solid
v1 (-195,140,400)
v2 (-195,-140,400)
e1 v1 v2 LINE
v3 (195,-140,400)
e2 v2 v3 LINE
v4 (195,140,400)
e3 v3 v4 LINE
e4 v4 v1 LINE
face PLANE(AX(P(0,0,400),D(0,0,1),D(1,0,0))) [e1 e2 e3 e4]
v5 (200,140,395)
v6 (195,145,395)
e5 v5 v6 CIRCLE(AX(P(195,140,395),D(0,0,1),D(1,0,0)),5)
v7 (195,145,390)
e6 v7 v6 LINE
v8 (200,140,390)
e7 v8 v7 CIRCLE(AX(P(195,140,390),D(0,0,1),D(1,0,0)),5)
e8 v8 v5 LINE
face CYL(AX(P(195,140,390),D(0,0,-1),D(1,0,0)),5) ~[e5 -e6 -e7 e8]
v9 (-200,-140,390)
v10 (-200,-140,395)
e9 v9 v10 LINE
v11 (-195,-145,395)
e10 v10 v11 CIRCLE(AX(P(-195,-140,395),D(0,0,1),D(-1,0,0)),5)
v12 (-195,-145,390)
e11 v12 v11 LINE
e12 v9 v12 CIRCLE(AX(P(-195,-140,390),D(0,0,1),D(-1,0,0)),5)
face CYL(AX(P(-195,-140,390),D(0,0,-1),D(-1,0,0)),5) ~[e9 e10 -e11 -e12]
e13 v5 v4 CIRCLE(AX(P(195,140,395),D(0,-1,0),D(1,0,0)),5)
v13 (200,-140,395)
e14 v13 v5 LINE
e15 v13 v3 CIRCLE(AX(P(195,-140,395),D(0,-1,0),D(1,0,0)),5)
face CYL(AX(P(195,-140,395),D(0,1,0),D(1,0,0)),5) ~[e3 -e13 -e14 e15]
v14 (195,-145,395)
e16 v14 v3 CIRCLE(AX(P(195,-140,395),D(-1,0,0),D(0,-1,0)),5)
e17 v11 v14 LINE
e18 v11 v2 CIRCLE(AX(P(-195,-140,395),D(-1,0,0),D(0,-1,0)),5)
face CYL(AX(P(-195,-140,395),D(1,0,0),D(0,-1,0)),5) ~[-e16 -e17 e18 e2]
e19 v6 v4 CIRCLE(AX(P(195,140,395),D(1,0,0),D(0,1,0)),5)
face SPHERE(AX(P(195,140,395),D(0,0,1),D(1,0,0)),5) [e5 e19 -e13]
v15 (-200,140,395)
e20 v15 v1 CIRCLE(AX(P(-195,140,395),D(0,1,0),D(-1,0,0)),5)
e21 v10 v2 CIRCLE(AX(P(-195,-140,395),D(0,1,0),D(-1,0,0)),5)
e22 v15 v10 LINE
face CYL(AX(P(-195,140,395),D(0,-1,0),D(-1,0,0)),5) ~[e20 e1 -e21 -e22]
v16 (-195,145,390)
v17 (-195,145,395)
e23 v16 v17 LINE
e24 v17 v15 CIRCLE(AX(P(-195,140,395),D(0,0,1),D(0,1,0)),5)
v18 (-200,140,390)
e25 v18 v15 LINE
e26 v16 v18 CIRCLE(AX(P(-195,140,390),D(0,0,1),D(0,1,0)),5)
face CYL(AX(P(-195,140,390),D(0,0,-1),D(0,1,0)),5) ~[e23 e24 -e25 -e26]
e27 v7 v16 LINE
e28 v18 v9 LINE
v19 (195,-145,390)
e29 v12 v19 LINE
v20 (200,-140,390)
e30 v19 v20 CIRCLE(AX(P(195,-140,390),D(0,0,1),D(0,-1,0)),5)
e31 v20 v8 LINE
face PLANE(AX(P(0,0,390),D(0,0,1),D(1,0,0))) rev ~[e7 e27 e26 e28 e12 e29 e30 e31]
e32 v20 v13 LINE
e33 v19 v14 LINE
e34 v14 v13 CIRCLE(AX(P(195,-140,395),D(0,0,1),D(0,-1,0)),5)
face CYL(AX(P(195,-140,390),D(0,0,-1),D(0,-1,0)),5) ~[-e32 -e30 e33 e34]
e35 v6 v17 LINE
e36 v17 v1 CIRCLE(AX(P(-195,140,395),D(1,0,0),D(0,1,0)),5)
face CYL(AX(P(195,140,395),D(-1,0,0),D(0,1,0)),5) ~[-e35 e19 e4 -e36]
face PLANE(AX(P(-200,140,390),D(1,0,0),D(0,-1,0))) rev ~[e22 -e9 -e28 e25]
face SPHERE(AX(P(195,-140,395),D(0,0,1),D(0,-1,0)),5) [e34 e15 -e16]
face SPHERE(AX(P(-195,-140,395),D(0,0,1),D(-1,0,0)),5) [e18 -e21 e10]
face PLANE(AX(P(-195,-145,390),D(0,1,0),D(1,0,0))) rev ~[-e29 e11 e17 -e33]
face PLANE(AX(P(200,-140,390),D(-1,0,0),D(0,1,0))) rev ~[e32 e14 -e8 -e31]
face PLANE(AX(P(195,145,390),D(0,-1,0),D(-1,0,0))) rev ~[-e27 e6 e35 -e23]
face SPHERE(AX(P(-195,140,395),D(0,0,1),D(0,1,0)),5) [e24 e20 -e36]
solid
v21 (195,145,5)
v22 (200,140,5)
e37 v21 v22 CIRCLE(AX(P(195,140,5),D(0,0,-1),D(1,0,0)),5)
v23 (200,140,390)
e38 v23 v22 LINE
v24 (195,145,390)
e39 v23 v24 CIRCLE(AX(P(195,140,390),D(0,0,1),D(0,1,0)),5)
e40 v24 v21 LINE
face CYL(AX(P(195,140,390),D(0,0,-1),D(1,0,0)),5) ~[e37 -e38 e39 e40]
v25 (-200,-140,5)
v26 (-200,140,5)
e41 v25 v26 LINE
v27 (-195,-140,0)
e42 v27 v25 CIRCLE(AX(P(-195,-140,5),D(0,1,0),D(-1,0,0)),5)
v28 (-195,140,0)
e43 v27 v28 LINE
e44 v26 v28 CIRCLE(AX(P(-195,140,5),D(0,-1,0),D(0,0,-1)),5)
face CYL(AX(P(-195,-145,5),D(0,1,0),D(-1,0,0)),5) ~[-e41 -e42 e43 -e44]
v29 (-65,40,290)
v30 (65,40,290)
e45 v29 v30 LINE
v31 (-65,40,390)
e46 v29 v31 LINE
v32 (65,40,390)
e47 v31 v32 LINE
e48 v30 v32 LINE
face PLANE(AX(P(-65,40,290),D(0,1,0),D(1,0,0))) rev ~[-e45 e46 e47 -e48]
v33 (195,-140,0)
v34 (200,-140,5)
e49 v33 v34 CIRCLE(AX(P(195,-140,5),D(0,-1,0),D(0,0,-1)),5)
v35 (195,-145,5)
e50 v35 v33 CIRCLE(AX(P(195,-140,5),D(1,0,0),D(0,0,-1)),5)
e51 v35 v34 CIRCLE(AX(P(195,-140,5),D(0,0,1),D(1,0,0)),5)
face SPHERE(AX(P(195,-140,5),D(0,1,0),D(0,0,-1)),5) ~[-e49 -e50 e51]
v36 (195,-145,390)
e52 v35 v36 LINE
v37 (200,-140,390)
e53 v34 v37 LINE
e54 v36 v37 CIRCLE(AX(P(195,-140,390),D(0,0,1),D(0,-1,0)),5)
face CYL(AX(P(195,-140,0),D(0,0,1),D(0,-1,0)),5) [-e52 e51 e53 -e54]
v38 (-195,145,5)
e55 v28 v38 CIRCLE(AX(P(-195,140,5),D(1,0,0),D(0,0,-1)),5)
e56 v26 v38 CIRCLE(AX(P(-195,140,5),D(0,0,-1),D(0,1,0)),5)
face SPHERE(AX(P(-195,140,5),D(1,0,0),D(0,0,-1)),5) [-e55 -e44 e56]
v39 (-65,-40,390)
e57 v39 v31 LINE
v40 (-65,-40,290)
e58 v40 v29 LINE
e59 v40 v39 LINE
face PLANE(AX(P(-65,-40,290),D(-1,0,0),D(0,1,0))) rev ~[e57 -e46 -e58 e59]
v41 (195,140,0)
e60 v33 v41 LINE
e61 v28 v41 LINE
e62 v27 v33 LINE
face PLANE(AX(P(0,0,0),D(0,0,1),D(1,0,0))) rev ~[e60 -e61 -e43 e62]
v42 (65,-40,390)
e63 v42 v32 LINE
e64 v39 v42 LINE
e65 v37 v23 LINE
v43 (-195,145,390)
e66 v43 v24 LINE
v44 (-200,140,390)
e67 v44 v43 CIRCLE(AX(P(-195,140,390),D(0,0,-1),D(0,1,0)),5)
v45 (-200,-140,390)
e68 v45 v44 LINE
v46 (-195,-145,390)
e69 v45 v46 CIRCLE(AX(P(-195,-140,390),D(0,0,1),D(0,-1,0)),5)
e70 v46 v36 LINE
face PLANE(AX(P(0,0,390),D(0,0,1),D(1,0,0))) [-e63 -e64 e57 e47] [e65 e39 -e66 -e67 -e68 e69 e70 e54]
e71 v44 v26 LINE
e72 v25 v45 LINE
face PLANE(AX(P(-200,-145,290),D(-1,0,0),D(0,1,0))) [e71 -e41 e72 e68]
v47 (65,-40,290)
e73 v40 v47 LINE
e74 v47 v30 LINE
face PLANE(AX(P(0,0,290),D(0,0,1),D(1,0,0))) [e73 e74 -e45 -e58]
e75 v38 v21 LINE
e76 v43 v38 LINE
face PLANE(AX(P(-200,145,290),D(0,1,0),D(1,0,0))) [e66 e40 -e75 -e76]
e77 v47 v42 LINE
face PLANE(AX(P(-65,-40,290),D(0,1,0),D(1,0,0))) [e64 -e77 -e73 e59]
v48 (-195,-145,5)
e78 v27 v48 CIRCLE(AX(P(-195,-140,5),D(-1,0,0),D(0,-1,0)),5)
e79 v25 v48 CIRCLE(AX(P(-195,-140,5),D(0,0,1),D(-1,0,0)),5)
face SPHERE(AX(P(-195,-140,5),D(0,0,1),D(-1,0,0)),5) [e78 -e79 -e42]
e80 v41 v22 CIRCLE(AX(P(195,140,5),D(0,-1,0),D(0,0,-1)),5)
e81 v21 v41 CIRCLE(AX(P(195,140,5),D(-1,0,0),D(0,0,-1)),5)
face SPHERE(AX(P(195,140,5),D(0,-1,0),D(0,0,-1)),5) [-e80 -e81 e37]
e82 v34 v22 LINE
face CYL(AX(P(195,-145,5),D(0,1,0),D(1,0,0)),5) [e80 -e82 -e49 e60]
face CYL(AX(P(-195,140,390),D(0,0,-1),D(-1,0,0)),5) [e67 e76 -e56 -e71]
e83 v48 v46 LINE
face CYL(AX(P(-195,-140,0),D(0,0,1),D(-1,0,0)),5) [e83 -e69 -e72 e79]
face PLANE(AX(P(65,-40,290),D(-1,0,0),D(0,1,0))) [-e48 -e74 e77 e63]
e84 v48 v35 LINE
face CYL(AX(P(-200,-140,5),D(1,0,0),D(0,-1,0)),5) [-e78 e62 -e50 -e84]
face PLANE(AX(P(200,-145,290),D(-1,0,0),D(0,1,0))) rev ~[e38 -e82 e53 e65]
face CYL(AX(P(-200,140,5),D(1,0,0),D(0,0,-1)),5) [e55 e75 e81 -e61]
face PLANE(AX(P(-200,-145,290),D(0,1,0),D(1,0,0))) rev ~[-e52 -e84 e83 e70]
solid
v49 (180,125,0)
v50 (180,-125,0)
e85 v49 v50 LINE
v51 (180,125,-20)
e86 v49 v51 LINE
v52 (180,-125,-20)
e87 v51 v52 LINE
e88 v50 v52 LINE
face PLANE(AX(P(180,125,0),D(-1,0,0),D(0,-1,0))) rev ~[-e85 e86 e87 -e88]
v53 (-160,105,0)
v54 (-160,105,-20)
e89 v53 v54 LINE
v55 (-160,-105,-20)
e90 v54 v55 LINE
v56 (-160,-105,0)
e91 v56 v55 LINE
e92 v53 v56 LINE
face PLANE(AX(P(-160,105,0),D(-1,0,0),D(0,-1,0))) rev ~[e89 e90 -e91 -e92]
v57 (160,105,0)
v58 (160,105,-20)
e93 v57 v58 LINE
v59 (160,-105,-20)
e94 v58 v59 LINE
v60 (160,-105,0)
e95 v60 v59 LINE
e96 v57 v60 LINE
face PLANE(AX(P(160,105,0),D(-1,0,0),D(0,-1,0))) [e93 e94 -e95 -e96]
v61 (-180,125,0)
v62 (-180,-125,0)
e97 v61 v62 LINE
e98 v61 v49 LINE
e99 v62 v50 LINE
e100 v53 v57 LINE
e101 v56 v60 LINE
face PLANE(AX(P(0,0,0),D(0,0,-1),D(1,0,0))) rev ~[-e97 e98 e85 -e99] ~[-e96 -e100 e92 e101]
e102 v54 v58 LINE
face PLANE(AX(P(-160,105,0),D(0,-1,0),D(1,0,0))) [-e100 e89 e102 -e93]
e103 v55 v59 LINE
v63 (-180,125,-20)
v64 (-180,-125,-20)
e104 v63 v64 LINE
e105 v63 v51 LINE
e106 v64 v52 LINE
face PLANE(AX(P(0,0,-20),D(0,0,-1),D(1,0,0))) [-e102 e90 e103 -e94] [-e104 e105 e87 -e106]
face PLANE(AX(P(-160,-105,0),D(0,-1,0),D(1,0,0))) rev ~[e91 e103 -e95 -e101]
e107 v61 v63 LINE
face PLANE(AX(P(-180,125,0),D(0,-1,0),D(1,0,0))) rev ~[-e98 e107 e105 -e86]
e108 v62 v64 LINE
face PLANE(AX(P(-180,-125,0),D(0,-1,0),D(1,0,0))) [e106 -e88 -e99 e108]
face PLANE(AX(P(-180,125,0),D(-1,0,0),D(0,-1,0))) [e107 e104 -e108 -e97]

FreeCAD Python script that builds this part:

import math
import FreeCAD as App
import Part
import Sketcher

V = App.Vector
Q = App.Units.Quantity


def edges_at(feature, points):
    """Names of the edges that pass closest to the given points."""
    edges = feature.Shape.Edges
    near = lambda p: min(range(len(edges)), key=lambda i: edges[i].distToShape(Part.Vertex(*p))[0])
    return sorted({f"Edge{near(p) + 1}" for p in points})

doc = App.newDocument("Part")
body = doc.addObject("PartDesign::Body", "Body")

# Sketch on XY plane
sketch1 = doc.addObject("Sketcher::SketchObject", "Sketch")
body.addObject(sketch1)
sketch1.AttachmentSupport = (doc.XY_Plane, [""])
sketch1.MapMode = "FlatFace"
sketch1.addGeometry([
    Part.LineSegment(V(-200, 145, 0), V(-200, -145, 0)),
    Part.LineSegment(V(-200, -145, 0), V(200, -145, 0)),
    Part.LineSegment(V(200, -145, 0), V(200, 145, 0)),
    Part.LineSegment(V(200, 145, 0), V(-200, 145, 0)),
], False)
sketch1.addConstraint([
    Sketcher.Constraint("Coincident", 0, 2, 1, 1),
    Sketcher.Constraint("Coincident", 1, 2, 2, 1),
    Sketcher.Constraint("Coincident", 2, 2, 3, 1),
    Sketcher.Constraint("Coincident", 3, 2, 0, 1),
    Sketcher.Constraint("Vertical", 0),
    Sketcher.Constraint("Horizontal", 1),
    Sketcher.Constraint("Vertical", 2),
    Sketcher.Constraint("Horizontal", 3),
    Sketcher.Constraint("Symmetric", 0, 2, 2, 2, -1, 1),
    Sketcher.Constraint("DistanceX", 1, 1, 1, 2, Q("400 mm")),
    Sketcher.Constraint("DistanceY", 0, 2, 0, 1, Q("290 mm")),
])
pad1 = doc.addObject("PartDesign::Pad", "Pad")
body.addObject(pad1)
pad1.Profile = sketch1
pad1.Length = 290

# Sketch on XY plane
sketch2 = doc.addObject("Sketcher::SketchObject", "Sketch001")
body.addObject(sketch2)
sketch2.AttachmentSupport = (doc.XY_Plane, [""])
sketch2.MapMode = "FlatFace"
sketch2.AttachmentOffset = App.Placement(V(0, 0, 290), App.Rotation())
sketch2.addGeometry([
    Part.LineSegment(V(-200, 145, 0), V(-200, -145, 0)),  # 0
    Part.LineSegment(V(-200, -145, 0), V(200, -145, 0)),  # 1
    Part.LineSegment(V(200, -145, 0), V(200, 145, 0)),  # 2
    Part.LineSegment(V(200, 145, 0), V(-200, 145, 0)),  # 3
    Part.LineSegment(V(65, -40, 0), V(-65, -40, 0)),  # 4
    Part.LineSegment(V(-65, -40, 0), V(-65, 40, 0)),  # 5
    Part.LineSegment(V(-65, 40, 0), V(65, 40, 0)),  # 6
    Part.LineSegment(V(65, 40, 0), V(65, -40, 0)),  # 7
], False)
sketch2.addConstraint([
    Sketcher.Constraint("Coincident", 0, 2, 1, 1),
    Sketcher.Constraint("Coincident", 1, 2, 2, 1),
    Sketcher.Constraint("Coincident", 2, 2, 3, 1),
    Sketcher.Constraint("Coincident", 3, 2, 0, 1),
    Sketcher.Constraint("Coincident", 4, 2, 5, 1),
    Sketcher.Constraint("Coincident", 5, 2, 6, 1),
    Sketcher.Constraint("Coincident", 6, 2, 7, 1),
    Sketcher.Constraint("Coincident", 7, 2, 4, 1),
    Sketcher.Constraint("Vertical", 0),
    Sketcher.Constraint("Horizontal", 1),
    Sketcher.Constraint("Vertical", 2),
    Sketcher.Constraint("Horizontal", 3),
    Sketcher.Constraint("Horizontal", 4),
    Sketcher.Constraint("Vertical", 5),
    Sketcher.Constraint("Horizontal", 6),
    Sketcher.Constraint("Vertical", 7),
    Sketcher.Constraint("Symmetric", 0, 2, 2, 2, -1, 1),
    Sketcher.Constraint("Symmetric", 4, 2, 6, 2, -1, 1),
    Sketcher.Constraint("DistanceX", 1, 1, 1, 2, Q("400 mm")),
    Sketcher.Constraint("DistanceX", 4, 2, 4, 1, Q("130 mm")),
    Sketcher.Constraint("DistanceY", 0, 2, 0, 1, Q("290 mm")),
    Sketcher.Constraint("DistanceY", 5, 1, 5, 2, Q("80 mm")),
])
pad2 = doc.addObject("PartDesign::Pad", "Pad001")
body.addObject(pad2)
pad2.Profile = sketch2
pad2.Length = 100
doc.recompute()

fillet = doc.addObject("PartDesign::Fillet", "Fillet")
body.addObject(fillet)
fillet.Base = (pad2, edges_at(pad2, [
    (-200, -145, 195),
    (200, 0, 0),
    (0, 145, 0),
    (-200, 0, 0),
    (0, -145, 0),
    (-200, 145, 195),
    (200, 145, 195),
    (200, -145, 195),
]))
fillet.Radius = 5
body2 = doc.addObject("PartDesign::Body", "Body001")

# Sketch on XY plane
sketch3 = doc.addObject("Sketcher::SketchObject", "Sketch002")
body2.addObject(sketch3)
sketch3.AttachmentSupport = (doc.getObject("XY_Plane001"), [""])
sketch3.MapMode = "FlatFace"
sketch3.addGeometry([
    Part.LineSegment(V(-180, -125, 0), V(-180, 125, 0)),  # 0
    Part.LineSegment(V(-180, 125, 0), V(180, 125, 0)),  # 1
    Part.LineSegment(V(180, 125, 0), V(180, -125, 0)),  # 2
    Part.LineSegment(V(180, -125, 0), V(-180, -125, 0)),  # 3
    Part.LineSegment(V(160, 105, 0), V(-160, 105, 0)),  # 4
    Part.LineSegment(V(-160, 105, 0), V(-160, -105, 0)),  # 5
    Part.LineSegment(V(-160, -105, 0), V(160, -105, 0)),  # 6
    Part.LineSegment(V(160, -105, 0), V(160, 105, 0)),  # 7
], False)
sketch3.addConstraint([
    Sketcher.Constraint("Coincident", 0, 2, 1, 1),
    Sketcher.Constraint("Coincident", 1, 2, 2, 1),
    Sketcher.Constraint("Coincident", 2, 2, 3, 1),
    Sketcher.Constraint("Coincident", 3, 2, 0, 1),
    Sketcher.Constraint("Coincident", 4, 2, 5, 1),
    Sketcher.Constraint("Coincident", 5, 2, 6, 1),
    Sketcher.Constraint("Coincident", 6, 2, 7, 1),
    Sketcher.Constraint("Coincident", 7, 2, 4, 1),
    Sketcher.Constraint("Vertical", 0),
    Sketcher.Constraint("Horizontal", 1),
    Sketcher.Constraint("Vertical", 2),
    Sketcher.Constraint("Horizontal", 3),
    Sketcher.Constraint("Horizontal", 4),
    Sketcher.Constraint("Vertical", 5),
    Sketcher.Constraint("Horizontal", 6),
    Sketcher.Constraint("Vertical", 7),
    Sketcher.Constraint("Symmetric", 0, 2, 2, 2, -1, 1),
    Sketcher.Constraint("Symmetric", 4, 2, 6, 2, -1, 1),
    Sketcher.Constraint("DistanceX", 1, 1, 1, 2, Q("360 mm")),
    Sketcher.Constraint("DistanceX", 4, 2, 4, 1, Q("320 mm")),
    Sketcher.Constraint("DistanceY", 0, 1, 0, 2, Q("250 mm")),
    Sketcher.Constraint("DistanceY", 5, 2, 5, 1, Q("210 mm")),
])
pad3 = doc.addObject("PartDesign::Pad", "Pad002")
body2.addObject(pad3)
pad3.Profile = sketch3
pad3.Length = 20
pad3.Reversed = True
body3 = doc.addObject("PartDesign::Body", "Body002")

# Sketch on XY plane
sketch4 = doc.addObject("Sketcher::SketchObject", "Sketch003")
body3.addObject(sketch4)
sketch4.AttachmentSupport = (doc.getObject("XY_Plane002"), [""])
sketch4.MapMode = "FlatFace"
sketch4.AttachmentOffset = App.Placement(V(0, 0, 390), App.Rotation())
sketch4.addGeometry([
    Part.ArcOfCircle(Part.Circle(V(-195, -140, 0), V(0, 0, 1), 5), math.radians(180), math.radians(270)),  # 0
    Part.LineSegment(V(-195, -145, 0), V(195, -145, 0)),  # 1
    Part.ArcOfCircle(Part.Circle(V(195, -140, 0), V(0, 0, 1), 5), math.radians(-90), math.radians(0)),  # 2
    Part.LineSegment(V(200, -140, 0), V(200, 140, 0)),  # 3
    Part.ArcOfCircle(Part.Circle(V(195, 140, 0), V(0, 0, 1), 5), math.radians(0), math.radians(90)),  # 4
    Part.LineSegment(V(195, 145, 0), V(-195, 145, 0)),  # 5
    Part.ArcOfCircle(Part.Circle(V(-195, 140, 0), V(0, 0, 1), 5), math.radians(90), math.radians(180)),  # 6
    Part.LineSegment(V(-200, 140, 0), V(-200, -140, 0)),  # 7
], False)
sketch4.addConstraint([
    Sketcher.Constraint("Tangent", 0, 2, 1, 1),
    Sketcher.Constraint("Tangent", 1, 2, 2, 1),
    Sketcher.Constraint("Tangent", 2, 2, 3, 1),
    Sketcher.Constraint("Tangent", 3, 2, 4, 1),
    Sketcher.Constraint("Tangent", 4, 2, 5, 1),
    Sketcher.Constraint("Tangent", 5, 2, 6, 1),
    Sketcher.Constraint("Tangent", 6, 2, 7, 1),
    Sketcher.Constraint("Tangent", 7, 2, 0, 1),
    Sketcher.Constraint("Horizontal", 1),
    Sketcher.Constraint("Vertical", 3),
    Sketcher.Constraint("Horizontal", 5),
    Sketcher.Constraint("Vertical", 7),
    Sketcher.Constraint("Equal", 0, 2),
    Sketcher.Constraint("Equal", 2, 4),
    Sketcher.Constraint("Equal", 4, 6),
    Sketcher.Constraint("Symmetric", 0, 3, 4, 3, -1, 1),
    Sketcher.Constraint("Radius", 0, Q("5 mm")),
    Sketcher.Constraint("DistanceX", 1, 1, 1, 2, Q("390 mm")),
    Sketcher.Constraint("DistanceY", 3, 1, 3, 2, Q("280 mm")),
])
pad4 = doc.addObject("PartDesign::Pad", "Pad003")
body3.addObject(pad4)
pad4.Profile = sketch4
pad4.Length = 10
doc.recompute()

fillet2 = doc.addObject("PartDesign::Fillet", "Fillet001")
body3.addObject(fillet2)
fillet2.Base = (pad4, edges_at(pad4, [(-200, 0, 400), (0, 145, 400)]))
fillet2.Radius = 5

doc.recompute()
